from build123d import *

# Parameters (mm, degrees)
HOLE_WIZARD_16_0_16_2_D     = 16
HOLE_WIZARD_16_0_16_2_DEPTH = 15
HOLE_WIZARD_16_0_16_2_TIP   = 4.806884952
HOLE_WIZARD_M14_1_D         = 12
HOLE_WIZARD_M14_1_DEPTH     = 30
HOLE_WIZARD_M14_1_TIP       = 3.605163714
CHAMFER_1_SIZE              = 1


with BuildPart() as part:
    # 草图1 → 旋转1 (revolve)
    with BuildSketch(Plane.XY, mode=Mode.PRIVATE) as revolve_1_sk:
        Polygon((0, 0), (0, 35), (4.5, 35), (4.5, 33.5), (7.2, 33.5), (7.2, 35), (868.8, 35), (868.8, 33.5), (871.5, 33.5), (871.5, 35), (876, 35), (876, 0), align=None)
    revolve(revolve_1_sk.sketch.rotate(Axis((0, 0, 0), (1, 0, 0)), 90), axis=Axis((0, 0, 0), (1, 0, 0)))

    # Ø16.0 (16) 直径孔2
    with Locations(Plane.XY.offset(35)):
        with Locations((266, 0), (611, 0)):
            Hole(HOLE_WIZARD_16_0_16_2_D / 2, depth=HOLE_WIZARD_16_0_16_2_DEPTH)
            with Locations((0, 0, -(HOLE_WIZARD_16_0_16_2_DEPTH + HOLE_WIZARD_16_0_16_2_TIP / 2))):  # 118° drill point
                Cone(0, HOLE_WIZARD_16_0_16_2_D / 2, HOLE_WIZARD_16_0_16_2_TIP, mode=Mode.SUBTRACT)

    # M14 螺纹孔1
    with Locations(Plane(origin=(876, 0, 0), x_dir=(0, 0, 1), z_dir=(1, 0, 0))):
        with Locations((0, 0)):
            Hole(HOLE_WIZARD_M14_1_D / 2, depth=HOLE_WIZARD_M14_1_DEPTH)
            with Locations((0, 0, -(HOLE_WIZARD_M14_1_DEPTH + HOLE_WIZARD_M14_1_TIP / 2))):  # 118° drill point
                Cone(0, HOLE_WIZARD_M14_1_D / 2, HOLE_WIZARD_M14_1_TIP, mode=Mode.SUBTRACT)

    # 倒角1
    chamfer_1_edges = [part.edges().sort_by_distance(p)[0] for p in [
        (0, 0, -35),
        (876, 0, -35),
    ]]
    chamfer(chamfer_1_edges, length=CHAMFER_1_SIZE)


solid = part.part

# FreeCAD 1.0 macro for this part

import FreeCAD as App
import Part
import Sketcher


def edges_at(feature, points):
    """Names of the edges that pass closest to the given points."""
    edges = feature.Shape.Edges
    near = lambda p: min(range(len(edges)), key=lambda i: edges[i].distToShape(Part.Vertex(*p))[0])
    return sorted({f"Edge{near(p) + 1}" for p in points})


def add_polygon(sketch, points):
    """Adds a closed chain of lines whose ends are joined by coincident constraints."""
    first, n = sketch.GeometryCount, len(points)
    for a, b in zip(points, points[1:] + points[:1]):
        sketch.addGeometry(Part.LineSegment(App.Vector(*a, 0), App.Vector(*b, 0)), False)
    for i in range(n):
        sketch.addConstraint(Sketcher.Constraint("Coincident", first + i, 2, first + (i + 1) % n, 1))

doc = App.newDocument("Part")
body = doc.addObject("PartDesign::Body", "Body")

sketch1 = doc.addObject("Sketcher::SketchObject", "Sketch")
body.addObject(sketch1)
sketch1.AttachmentSupport = (doc.XY_Plane, [""])
sketch1.MapMode = "FlatFace"
add_polygon(sketch1, [(0, 35), (0, 0), (876, 0), (876, 35), (871.5, 35), (871.5, 33.5), (868.8, 33.5), (868.8, 35), (7.2, 35), (7.2, 33.5), (4.5, 33.5), (4.5, 35)])
sketch1.addConstraint(Sketcher.Constraint("Vertical", 0))
sketch1.addConstraint(Sketcher.Constraint("Horizontal", 1))
sketch1.addConstraint(Sketcher.Constraint("Vertical", 2))
sketch1.addConstraint(Sketcher.Constraint("Horizontal", 3))
sketch1.addConstraint(Sketcher.Constraint("Vertical", 4))
sketch1.addConstraint(Sketcher.Constraint("Horizontal", 5))
sketch1.addConstraint(Sketcher.Constraint("Vertical", 6))
sketch1.addConstraint(Sketcher.Constraint("Horizontal", 7))
sketch1.addConstraint(Sketcher.Constraint("Vertical", 8))
sketch1.addConstraint(Sketcher.Constraint("Horizontal", 9))
sketch1.addConstraint(Sketcher.Constraint("Vertical", 10))
sketch1.addConstraint(Sketcher.Constraint("Horizontal", 11))
sketch1.addConstraint(Sketcher.Constraint("Coincident", 0, 2, -1, 1))
sketch1.addConstraint(Sketcher.Constraint("Horizontal", 3, 2, 6, 2))
sketch1.addConstraint(Sketcher.Constraint("Horizontal", 5, 2, 8, 2))
sketch1.addConstraint(Sketcher.Constraint("Horizontal", 7, 2, 10, 2))
sketch1.addConstraint(Sketcher.Constraint("Equal", 5, 9))
sketch1.addConstraint(Sketcher.Constraint("Equal", 3, 11))
sketch1.addConstraint(Sketcher.Constraint("DistanceX", 1, 1, 1, 2, 876.0))
sketch1.addConstraint(Sketcher.Constraint("DistanceY", 0, 2, 0, 1, 35.0))
sketch1.addConstraint(Sketcher.Constraint("DistanceX", 3, 2, 3, 1, 4.5))
sketch1.addConstraint(Sketcher.Constraint("DistanceX", 5, 2, 5, 1, 2.7))
sketch1.addConstraint(Sketcher.Constraint("DistanceY", 4, 2, 4, 1, 1.5))
revolution = doc.addObject("PartDesign::Revolution", "Revolution")
body.addObject(revolution)
revolution.Profile = sketch1
revolution.ReferenceAxis = (sketch1, ["H_Axis"])
revolution.Angle = 360

sketch2 = doc.addObject("Sketcher::SketchObject", "Sketch001")
body.addObject(sketch2)
sketch2.AttachmentSupport = (doc.XY_Plane, [""])
sketch2.MapMode = "FlatFace"
sketch2.AttachmentOffset = App.Placement(App.Vector(0, 0, 35), App.Rotation())
sketch2.addGeometry(Part.Circle(App.Vector(266, 0, 0), App.Vector(0, 0, 1), 8), False)
sketch2.addGeometry(Part.Circle(App.Vector(611, 0, 0), App.Vector(0, 0, 1), 8), False)
sketch2.addConstraint(Sketcher.Constraint("Equal", 0, 1))
sketch2.addConstraint(Sketcher.Constraint("PointOnObject", 0, 3, -1))
sketch2.addConstraint(Sketcher.Constraint("PointOnObject", 1, 3, -1))
sketch2.addConstraint(Sketcher.Constraint("Diameter", 0, 16.0))
sketch2.addConstraint(Sketcher.Constraint("DistanceX", -1, 1, 0, 3, 266.0))
sketch2.addConstraint(Sketcher.Constraint("DistanceX", -1, 1, 1, 3, 611.0))
doc.recompute()
hole = doc.addObject("PartDesign::Hole", "Hole")
body.addObject(hole)
hole.Profile = sketch2
hole.ThreadType = "None"
hole.Diameter = 16
hole.DepthType = "Dimension"
hole.Depth = 15
hole.DrillPoint = "Angled"
hole.DrillPointAngle = 118

sketch3 = doc.addObject("Sketcher::SketchObject", "Sketch002")
body.addObject(sketch3)
sketch3.AttachmentSupport = (doc.YZ_Plane, [""])
sketch3.MapMode = "FlatFace"
sketch3.AttachmentOffset = App.Placement(App.Vector(0, 0, 876), App.Rotation())
sketch3.addGeometry(Part.Circle(App.Vector(0, 0, 0), App.Vector(0, 0, 1), 6), False)
sketch3.addConstraint(Sketcher.Constraint("Coincident", 0, 3, -1, 1))
sketch3.addConstraint(Sketcher.Constraint("Diameter", 0, 12.0))
doc.recompute()
hole2 = doc.addObject("PartDesign::Hole", "Hole001")
body.addObject(hole2)
hole2.Profile = sketch3
hole2.ThreadType = "None"
hole2.Diameter = 12
hole2.DepthType = "Dimension"
hole2.Depth = 30
hole2.DrillPoint = "Angled"
hole2.DrillPointAngle = 118
doc.recompute()

chamfer = doc.addObject("PartDesign::Chamfer", "Chamfer")
body.addObject(chamfer)
chamfer.Base = (hole2, edges_at(hole2, [(0, 0, -35), (876, 0, -35)]))
chamfer.Size = 1

doc.recompute()
